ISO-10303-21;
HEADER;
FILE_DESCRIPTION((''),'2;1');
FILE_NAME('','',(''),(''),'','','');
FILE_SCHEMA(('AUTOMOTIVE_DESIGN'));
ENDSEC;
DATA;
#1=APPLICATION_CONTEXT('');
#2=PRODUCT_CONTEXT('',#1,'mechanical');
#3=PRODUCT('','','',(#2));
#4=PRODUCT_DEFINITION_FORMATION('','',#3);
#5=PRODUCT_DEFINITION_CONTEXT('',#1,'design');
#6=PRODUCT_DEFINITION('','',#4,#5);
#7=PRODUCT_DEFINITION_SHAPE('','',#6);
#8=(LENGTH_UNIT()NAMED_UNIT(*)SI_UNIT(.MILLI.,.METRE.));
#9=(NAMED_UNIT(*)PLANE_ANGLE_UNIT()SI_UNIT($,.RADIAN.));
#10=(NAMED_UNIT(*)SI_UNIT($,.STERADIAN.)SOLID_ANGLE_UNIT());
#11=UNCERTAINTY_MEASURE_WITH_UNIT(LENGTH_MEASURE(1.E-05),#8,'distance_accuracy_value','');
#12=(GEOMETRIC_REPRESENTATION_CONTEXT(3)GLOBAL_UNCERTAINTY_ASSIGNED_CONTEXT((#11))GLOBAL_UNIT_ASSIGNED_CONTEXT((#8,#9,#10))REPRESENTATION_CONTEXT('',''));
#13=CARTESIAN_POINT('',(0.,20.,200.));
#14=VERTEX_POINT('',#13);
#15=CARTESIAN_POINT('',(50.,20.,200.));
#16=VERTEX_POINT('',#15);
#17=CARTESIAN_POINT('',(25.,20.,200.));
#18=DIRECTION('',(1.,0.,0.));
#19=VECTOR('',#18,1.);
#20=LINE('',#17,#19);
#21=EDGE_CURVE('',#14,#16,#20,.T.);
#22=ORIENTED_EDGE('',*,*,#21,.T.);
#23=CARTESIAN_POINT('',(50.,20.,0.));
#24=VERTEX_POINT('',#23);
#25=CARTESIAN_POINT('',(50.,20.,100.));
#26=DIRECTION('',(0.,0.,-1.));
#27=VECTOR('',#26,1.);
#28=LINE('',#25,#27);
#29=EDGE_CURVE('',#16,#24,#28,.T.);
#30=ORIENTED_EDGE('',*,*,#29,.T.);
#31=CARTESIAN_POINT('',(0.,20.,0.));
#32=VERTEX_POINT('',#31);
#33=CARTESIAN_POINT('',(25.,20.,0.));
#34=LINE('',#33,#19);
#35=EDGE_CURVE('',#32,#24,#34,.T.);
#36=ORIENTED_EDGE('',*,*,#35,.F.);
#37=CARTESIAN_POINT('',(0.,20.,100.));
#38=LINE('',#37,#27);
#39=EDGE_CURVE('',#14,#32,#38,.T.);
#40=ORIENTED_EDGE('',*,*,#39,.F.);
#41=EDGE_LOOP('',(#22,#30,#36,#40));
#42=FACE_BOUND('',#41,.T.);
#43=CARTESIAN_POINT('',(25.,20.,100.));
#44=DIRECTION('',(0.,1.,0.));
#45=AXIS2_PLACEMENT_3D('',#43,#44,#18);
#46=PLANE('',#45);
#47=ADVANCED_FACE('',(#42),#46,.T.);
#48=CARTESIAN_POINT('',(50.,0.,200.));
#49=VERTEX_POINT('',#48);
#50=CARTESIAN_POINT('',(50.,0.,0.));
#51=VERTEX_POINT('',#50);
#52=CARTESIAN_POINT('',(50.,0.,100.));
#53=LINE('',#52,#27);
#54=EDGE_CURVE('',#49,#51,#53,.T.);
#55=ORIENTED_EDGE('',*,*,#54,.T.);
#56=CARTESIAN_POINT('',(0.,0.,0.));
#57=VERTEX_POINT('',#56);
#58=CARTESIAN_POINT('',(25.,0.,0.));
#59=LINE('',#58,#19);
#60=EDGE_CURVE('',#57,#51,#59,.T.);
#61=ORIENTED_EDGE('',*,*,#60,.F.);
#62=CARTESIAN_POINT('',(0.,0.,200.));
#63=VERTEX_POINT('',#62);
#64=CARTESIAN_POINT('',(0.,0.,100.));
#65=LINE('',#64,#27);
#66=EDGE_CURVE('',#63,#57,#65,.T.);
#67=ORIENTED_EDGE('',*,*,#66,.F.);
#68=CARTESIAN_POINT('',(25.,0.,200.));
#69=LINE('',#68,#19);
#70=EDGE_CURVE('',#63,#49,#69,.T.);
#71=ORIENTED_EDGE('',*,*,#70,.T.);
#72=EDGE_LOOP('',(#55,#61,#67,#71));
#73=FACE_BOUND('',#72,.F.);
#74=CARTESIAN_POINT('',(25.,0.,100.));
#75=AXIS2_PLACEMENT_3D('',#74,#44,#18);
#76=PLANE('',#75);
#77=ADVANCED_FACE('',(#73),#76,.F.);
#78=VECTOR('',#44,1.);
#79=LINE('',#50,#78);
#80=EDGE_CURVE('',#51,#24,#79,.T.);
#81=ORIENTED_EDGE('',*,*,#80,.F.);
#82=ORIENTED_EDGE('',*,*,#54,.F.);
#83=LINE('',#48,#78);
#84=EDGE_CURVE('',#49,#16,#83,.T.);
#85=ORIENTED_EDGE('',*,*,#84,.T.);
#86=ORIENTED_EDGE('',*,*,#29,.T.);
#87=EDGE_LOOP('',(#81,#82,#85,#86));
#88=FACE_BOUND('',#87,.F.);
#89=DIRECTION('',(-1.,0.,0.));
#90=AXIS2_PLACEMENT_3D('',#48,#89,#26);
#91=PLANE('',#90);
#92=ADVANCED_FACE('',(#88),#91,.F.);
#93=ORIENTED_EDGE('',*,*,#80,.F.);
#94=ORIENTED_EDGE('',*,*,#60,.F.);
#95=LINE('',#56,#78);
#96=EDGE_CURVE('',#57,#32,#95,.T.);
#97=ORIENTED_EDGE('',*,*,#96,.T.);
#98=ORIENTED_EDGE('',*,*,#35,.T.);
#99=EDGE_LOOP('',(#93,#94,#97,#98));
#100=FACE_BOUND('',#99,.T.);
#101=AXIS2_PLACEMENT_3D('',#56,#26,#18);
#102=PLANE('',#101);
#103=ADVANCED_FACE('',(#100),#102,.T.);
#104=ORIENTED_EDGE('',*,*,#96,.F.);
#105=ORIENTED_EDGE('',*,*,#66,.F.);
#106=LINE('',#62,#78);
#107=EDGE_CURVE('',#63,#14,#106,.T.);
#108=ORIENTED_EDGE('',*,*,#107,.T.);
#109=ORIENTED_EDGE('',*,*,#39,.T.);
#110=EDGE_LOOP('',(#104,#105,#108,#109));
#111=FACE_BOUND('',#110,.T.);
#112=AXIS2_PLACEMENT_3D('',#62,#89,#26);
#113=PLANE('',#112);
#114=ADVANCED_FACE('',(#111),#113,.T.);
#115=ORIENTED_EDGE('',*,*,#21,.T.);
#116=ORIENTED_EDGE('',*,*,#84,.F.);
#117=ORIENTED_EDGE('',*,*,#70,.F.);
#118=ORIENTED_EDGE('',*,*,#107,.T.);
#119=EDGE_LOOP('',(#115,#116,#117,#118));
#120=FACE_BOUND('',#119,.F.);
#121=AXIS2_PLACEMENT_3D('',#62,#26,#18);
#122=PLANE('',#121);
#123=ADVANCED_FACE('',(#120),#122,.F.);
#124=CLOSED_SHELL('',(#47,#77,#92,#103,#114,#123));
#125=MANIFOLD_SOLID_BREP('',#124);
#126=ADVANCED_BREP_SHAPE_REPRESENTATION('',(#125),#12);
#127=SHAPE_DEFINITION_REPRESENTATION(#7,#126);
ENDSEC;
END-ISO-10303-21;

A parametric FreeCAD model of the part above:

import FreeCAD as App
import Part
import Sketcher


def add_polygon(sketch, points):
    """Adds a closed chain of lines whose ends are joined by coincident constraints."""
    first, n = sketch.GeometryCount, len(points)
    for a, b in zip(points, points[1:] + points[:1]):
        sketch.addGeometry(Part.LineSegment(App.Vector(*a, 0), App.Vector(*b, 0)), False)
    for i in range(n):
        sketch.addConstraint(Sketcher.Constraint("Coincident", first + i, 2, first + (i + 1) % n, 1))

doc = App.newDocument("Part")
body = doc.addObject("PartDesign::Body", "Body")

sketch1 = doc.addObject("Sketcher::SketchObject", "Sketch")
body.addObject(sketch1)
sketch1.AttachmentSupport = (doc.XZ_Plane, [""])
sketch1.MapMode = "FlatFace"
add_polygon(sketch1, [(0, 0), (0, 200), (50, 200), (50, 0)])
sketch1.addConstraint(Sketcher.Constraint("Vertical", 0))
sketch1.addConstraint(Sketcher.Constraint("Horizontal", 1))
sketch1.addConstraint(Sketcher.Constraint("Vertical", 2))
sketch1.addConstraint(Sketcher.Constraint("Horizontal", 3))
sketch1.addConstraint(Sketcher.Constraint("Coincident", 3, 2, -1, 1))
sketch1.addConstraint(Sketcher.Constraint("DistanceX", 1, 1, 1, 2, 50.0))
sketch1.addConstraint(Sketcher.Constraint("DistanceY", 0, 1, 0, 2, 200.0))
pad1 = doc.addObject("PartDesign::Pad", "Pad")
body.addObject(pad1)
pad1.Profile = sketch1
pad1.Length = 20
pad1.Reversed = True

doc.recompute()
